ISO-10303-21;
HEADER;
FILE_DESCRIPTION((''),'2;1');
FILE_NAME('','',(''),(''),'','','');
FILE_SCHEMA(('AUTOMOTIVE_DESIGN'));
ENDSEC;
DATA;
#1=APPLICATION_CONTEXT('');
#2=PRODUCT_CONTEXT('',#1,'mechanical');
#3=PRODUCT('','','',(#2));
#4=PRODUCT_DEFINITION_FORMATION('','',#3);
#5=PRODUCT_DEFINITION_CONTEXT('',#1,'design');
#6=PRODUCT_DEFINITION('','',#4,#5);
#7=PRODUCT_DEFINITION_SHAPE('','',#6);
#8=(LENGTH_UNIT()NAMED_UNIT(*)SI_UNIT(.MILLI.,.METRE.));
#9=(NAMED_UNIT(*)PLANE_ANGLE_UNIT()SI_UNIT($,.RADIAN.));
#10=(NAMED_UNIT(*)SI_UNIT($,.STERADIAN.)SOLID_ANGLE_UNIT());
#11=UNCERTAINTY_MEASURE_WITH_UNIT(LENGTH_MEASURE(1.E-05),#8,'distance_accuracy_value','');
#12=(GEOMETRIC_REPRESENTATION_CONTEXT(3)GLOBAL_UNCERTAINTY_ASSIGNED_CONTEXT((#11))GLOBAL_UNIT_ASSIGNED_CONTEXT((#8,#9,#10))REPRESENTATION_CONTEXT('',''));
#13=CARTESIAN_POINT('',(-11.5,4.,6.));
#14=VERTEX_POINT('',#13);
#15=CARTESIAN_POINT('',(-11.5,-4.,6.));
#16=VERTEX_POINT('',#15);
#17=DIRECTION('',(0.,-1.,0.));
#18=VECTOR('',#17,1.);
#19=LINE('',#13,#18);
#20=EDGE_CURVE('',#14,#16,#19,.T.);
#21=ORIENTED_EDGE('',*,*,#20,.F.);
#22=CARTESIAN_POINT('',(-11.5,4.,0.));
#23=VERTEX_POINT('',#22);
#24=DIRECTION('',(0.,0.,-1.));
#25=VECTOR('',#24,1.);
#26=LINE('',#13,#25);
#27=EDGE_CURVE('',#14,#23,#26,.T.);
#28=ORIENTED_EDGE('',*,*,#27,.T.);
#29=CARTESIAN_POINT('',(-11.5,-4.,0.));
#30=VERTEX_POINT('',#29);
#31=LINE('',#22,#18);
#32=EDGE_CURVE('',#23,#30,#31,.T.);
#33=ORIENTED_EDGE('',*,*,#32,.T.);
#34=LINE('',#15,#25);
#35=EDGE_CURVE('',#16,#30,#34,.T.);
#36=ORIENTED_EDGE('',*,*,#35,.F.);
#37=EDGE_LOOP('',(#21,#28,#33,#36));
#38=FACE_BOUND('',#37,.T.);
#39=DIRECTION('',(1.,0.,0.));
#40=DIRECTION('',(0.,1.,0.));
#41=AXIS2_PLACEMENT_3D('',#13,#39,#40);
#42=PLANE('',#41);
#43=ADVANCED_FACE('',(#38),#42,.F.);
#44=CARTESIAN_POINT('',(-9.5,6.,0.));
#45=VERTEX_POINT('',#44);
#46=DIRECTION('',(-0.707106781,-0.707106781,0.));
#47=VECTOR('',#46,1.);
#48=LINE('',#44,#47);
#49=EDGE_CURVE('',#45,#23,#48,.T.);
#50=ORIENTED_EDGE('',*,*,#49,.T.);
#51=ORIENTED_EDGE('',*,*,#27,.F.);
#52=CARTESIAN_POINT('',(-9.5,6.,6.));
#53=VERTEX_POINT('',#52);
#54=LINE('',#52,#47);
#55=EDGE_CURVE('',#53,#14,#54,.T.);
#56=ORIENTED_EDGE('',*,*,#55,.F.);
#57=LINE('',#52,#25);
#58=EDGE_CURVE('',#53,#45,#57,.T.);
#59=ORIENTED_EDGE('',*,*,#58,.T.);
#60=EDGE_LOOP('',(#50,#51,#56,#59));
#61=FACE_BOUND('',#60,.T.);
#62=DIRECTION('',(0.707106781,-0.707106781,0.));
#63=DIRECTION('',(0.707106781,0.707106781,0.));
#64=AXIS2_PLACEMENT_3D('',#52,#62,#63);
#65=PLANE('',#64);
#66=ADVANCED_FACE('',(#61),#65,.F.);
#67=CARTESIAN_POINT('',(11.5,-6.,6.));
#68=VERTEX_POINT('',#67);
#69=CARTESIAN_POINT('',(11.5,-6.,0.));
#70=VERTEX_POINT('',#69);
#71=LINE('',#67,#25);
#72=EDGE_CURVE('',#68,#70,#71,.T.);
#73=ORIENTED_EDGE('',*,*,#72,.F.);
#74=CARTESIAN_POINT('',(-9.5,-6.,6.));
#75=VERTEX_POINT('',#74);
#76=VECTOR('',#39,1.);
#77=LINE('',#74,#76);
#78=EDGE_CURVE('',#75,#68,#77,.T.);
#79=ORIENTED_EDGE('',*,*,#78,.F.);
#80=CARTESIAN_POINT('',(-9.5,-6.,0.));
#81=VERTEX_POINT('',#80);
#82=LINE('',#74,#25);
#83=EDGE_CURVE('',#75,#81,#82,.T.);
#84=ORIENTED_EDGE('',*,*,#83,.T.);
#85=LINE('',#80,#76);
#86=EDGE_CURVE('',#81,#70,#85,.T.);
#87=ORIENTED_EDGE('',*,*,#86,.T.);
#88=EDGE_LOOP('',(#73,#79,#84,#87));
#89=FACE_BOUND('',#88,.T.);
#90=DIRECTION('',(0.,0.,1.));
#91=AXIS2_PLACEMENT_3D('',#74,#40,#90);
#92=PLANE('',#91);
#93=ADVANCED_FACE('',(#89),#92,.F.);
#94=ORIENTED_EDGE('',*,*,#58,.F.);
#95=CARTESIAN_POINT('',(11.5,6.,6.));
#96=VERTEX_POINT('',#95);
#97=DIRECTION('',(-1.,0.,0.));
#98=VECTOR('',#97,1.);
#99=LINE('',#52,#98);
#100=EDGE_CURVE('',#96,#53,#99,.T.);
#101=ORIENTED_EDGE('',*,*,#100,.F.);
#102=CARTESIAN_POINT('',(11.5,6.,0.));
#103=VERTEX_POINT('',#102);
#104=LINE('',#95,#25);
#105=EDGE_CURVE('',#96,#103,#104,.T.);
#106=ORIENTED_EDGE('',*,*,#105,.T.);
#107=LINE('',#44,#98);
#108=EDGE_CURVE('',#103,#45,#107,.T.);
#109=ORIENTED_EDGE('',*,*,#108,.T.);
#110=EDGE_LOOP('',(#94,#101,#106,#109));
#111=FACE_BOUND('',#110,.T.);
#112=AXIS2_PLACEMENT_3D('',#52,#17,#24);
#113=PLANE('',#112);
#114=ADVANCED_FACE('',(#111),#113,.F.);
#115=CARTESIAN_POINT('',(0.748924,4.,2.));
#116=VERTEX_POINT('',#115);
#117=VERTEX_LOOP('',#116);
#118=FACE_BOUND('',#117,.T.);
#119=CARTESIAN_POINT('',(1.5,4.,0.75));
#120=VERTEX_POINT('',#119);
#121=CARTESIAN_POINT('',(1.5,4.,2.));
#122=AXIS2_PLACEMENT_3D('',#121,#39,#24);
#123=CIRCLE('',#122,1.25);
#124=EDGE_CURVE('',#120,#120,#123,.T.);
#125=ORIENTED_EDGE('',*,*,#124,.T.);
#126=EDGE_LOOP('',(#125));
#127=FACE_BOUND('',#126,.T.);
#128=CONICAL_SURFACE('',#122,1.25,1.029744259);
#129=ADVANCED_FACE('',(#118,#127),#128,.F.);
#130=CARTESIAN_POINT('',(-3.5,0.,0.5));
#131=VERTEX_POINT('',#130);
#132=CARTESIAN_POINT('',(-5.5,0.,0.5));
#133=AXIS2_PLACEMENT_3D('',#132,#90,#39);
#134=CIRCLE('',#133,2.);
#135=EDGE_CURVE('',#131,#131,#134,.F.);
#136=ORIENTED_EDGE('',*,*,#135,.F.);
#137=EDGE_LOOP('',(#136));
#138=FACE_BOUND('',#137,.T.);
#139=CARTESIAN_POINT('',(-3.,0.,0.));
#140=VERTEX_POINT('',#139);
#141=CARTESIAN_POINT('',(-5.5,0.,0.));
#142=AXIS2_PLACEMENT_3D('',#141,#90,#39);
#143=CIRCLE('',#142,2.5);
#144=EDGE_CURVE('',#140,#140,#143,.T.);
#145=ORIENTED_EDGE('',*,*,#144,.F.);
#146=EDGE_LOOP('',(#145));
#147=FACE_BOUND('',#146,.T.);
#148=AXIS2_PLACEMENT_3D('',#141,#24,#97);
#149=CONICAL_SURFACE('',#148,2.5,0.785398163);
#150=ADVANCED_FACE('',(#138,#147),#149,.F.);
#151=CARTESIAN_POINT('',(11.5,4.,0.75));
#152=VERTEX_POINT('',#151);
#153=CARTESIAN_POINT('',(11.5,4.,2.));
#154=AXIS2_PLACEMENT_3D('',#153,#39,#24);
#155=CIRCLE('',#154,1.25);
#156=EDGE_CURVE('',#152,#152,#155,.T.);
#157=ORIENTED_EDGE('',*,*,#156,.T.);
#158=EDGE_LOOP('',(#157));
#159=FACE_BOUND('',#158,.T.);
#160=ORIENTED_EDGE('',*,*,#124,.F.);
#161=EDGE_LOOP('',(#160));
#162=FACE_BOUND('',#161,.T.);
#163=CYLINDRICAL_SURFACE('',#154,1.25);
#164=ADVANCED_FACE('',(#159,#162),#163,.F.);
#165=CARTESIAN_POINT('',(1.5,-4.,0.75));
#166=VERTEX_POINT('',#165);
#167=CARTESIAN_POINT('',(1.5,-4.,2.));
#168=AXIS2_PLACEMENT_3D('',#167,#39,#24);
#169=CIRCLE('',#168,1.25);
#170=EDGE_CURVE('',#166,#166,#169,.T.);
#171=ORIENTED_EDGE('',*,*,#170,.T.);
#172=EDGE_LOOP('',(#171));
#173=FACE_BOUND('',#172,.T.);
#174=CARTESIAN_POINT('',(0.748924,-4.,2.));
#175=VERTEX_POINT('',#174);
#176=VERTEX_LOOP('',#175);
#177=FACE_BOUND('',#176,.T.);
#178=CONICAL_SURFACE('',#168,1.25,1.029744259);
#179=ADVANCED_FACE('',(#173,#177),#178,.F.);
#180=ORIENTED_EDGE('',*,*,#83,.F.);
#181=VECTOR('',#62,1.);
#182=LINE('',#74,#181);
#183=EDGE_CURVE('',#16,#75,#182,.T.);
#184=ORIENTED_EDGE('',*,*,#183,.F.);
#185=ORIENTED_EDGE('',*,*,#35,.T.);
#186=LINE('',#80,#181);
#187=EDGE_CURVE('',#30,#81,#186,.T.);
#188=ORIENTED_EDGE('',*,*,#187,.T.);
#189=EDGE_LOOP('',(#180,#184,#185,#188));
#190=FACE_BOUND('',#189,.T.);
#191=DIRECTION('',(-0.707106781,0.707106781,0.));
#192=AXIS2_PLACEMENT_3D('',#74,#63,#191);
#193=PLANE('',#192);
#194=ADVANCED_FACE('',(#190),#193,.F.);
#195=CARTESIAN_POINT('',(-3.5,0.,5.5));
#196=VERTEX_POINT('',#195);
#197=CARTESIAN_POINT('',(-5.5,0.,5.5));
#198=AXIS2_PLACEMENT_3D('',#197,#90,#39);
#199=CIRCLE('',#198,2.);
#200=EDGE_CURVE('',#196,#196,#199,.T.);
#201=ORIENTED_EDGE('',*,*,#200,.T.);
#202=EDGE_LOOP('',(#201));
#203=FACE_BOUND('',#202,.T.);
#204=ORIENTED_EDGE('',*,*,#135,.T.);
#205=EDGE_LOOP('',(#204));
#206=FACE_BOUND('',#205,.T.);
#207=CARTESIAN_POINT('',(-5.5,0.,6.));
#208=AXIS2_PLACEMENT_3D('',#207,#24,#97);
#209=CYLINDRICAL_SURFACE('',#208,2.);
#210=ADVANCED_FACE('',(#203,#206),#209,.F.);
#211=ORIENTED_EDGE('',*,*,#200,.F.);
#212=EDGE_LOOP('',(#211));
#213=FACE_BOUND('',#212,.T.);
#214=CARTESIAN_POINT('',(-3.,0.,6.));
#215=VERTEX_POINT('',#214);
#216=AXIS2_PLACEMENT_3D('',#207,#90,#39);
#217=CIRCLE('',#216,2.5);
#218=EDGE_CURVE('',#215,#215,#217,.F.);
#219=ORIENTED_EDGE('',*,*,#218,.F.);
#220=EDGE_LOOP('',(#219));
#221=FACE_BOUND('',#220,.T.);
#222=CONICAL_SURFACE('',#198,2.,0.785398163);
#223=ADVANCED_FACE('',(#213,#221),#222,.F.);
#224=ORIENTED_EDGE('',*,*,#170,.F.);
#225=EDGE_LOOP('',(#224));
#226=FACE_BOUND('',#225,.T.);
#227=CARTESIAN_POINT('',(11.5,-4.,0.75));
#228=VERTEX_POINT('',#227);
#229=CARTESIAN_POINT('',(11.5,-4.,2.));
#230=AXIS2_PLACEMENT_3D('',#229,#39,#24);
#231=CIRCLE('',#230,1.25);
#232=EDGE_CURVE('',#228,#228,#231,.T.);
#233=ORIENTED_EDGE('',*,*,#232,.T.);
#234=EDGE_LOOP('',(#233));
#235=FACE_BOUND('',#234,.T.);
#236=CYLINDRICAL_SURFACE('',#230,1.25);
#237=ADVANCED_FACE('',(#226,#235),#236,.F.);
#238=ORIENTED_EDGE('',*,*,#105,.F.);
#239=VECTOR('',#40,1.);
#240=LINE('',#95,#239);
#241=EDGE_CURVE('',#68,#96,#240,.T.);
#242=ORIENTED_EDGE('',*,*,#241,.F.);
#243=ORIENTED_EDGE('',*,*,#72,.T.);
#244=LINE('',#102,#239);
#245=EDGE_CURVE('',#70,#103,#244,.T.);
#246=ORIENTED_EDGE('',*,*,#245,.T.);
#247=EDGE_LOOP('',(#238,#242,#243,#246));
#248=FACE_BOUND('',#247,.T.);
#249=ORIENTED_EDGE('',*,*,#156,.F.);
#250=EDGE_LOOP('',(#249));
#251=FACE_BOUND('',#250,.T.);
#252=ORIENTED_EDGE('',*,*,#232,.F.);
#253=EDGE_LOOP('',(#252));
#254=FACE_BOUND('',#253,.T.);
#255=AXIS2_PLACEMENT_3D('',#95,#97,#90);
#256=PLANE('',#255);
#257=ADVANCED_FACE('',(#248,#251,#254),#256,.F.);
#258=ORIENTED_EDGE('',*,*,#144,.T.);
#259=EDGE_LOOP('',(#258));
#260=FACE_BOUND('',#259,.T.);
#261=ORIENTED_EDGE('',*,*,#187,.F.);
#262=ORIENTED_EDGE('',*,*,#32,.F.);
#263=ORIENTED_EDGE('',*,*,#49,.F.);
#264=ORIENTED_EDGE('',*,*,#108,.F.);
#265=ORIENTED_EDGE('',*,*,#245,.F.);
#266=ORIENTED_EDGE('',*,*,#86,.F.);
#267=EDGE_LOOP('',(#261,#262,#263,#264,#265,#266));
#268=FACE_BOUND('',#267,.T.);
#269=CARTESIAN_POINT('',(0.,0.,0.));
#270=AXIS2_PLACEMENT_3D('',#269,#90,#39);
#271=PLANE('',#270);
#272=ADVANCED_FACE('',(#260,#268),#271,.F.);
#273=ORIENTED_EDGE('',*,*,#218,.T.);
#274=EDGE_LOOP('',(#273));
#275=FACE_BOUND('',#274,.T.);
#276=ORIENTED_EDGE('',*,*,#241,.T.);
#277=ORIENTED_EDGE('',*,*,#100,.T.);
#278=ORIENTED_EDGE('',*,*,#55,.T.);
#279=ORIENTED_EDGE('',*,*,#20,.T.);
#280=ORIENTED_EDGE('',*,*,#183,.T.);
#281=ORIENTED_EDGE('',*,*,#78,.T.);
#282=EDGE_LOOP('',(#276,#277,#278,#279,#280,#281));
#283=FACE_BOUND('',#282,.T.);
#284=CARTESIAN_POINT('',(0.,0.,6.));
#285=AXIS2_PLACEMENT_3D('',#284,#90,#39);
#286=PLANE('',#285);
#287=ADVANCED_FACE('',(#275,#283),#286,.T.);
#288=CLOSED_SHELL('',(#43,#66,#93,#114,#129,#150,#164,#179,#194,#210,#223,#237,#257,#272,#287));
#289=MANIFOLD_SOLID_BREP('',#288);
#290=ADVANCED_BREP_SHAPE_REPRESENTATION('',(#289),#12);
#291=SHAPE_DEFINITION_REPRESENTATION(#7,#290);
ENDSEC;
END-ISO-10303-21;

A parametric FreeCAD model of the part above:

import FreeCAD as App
import Part
import Sketcher
from FreeCAD import Vector
Q = App.Units.Quantity


def edges_at(feature, points):
    """Names of the edges that pass closest to the given points."""
    edges = feature.Shape.Edges
    near = lambda p: min(range(len(edges)), key=lambda i: edges[i].distToShape(Part.Vertex(*p))[0])
    return sorted({f"Edge{near(p) + 1}" for p in points})


def add_polygon(sketch, points):
    """Adds a closed chain of lines whose ends are joined by coincident constraints."""
    first, n = sketch.GeometryCount, len(points)
    for a, b in zip(points, points[1:] + points[:1]):
        sketch.addGeometry(Part.LineSegment(App.Vector(*a, 0), App.Vector(*b, 0)), False)
    for i in range(n):
        sketch.addConstraint(Sketcher.Constraint("Coincident", first + i, 2, first + (i + 1) % n, 1))

doc = App.newDocument("Part")
body = doc.addObject("PartDesign::Body", "Body")

sketch1 = body.newObject("Sketcher::SketchObject", "Sketch")
sketch1.AttachmentSupport = (doc.getObject("XY_Plane"), [""])
sketch1.MapMode = "FlatFace"
add_polygon(sketch1, [(-11.5, -4), (-9.5, -6), (11.5, -6), (11.5, 6), (-9.5, 6), (-11.5, 4)])
sketch1.addGeometry(Part.Circle(Vector(-5.5, 0, 0), Vector(0, 0, 1), 2), False)
sketch1.addConstraint(Sketcher.Constraint("Horizontal", 1))
sketch1.addConstraint(Sketcher.Constraint("Vertical", 2))
sketch1.addConstraint(Sketcher.Constraint("Horizontal", 3))
sketch1.addConstraint(Sketcher.Constraint("Vertical", 5))
sketch1.addConstraint(Sketcher.Constraint("Symmetric", 0, 2, 3, 2, -1))
sketch1.addConstraint(Sketcher.Constraint("PointOnObject", 6, 3, -1))
sketch1.addConstraint(Sketcher.Constraint("Perpendicular", 0, 4))
sketch1.addConstraint(Sketcher.Constraint("Equal", 0, 4))
sketch1.addConstraint(Sketcher.Constraint("Diameter", 6, Q("4 mm")))
sketch1.addConstraint(Sketcher.Constraint("DistanceX", 1, 1, 1, 2, Q("21 mm")))
sketch1.addConstraint(Sketcher.Constraint("DistanceY", 2, 1, 2, 2, Q("12 mm")))
sketch1.addConstraint(Sketcher.Constraint("DistanceY", 5, 2, 5, 1, Q("8 mm")))
sketch1.addConstraint(Sketcher.Constraint("DistanceX", 0, 2, 6, 3, Q("4 mm")))
sketch1.addConstraint(Sketcher.Constraint("DistanceX", 6, 3, -1, 1, Q("5.5 mm")))
pad1 = body.newObject("PartDesign::Pad", "Pad")
pad1.Profile = sketch1
pad1.Length = 6
doc.recompute()

chamfer = body.newObject("PartDesign::Chamfer", "Chamfer")
chamfer.Base = (pad1, edges_at(pad1, [(-7.5, 0, 0), (-7.5, 0, 6)]))
chamfer.Size = 0.5

sketch2 = body.newObject("Sketcher::SketchObject", "Sketch001")
sketch2.AttachmentSupport = (doc.getObject("YZ_Plane"), [""])
sketch2.MapMode = "FlatFace"
sketch2.AttachmentOffset = App.Placement(Vector(0, 0, 11.5), App.Rotation())
sketch2.addGeometry(Part.Circle(Vector(4, 2, 0), Vector(0, 0, 1), 1.2), False)
sketch2.addGeometry(Part.Circle(Vector(-4, 2, 0), Vector(0, 0, 1), 1.2), False)
sketch2.addConstraint(Sketcher.Constraint("Equal", 0, 1))
sketch2.addConstraint(Sketcher.Constraint("Symmetric", 0, 3, 1, 3, -2))
sketch2.addConstraint(Sketcher.Constraint("Diameter", 0, Q("2.5 mm")))
sketch2.addConstraint(Sketcher.Constraint("DistanceX", -1, 1, 0, 3, Q("4 mm")))
sketch2.addConstraint(Sketcher.Constraint("DistanceY", -1, 1, 0, 3, Q("2 mm")))
doc.recompute()
hole = body.newObject("PartDesign::Hole", "Hole")
hole.Profile = sketch2
hole.ThreadType = "None"
hole.Diameter = 2.5
hole.DepthType = "Dimension"
hole.Depth = 10
hole.DrillPoint = "Angled"
hole.DrillPointAngle = 118

doc.recompute()
